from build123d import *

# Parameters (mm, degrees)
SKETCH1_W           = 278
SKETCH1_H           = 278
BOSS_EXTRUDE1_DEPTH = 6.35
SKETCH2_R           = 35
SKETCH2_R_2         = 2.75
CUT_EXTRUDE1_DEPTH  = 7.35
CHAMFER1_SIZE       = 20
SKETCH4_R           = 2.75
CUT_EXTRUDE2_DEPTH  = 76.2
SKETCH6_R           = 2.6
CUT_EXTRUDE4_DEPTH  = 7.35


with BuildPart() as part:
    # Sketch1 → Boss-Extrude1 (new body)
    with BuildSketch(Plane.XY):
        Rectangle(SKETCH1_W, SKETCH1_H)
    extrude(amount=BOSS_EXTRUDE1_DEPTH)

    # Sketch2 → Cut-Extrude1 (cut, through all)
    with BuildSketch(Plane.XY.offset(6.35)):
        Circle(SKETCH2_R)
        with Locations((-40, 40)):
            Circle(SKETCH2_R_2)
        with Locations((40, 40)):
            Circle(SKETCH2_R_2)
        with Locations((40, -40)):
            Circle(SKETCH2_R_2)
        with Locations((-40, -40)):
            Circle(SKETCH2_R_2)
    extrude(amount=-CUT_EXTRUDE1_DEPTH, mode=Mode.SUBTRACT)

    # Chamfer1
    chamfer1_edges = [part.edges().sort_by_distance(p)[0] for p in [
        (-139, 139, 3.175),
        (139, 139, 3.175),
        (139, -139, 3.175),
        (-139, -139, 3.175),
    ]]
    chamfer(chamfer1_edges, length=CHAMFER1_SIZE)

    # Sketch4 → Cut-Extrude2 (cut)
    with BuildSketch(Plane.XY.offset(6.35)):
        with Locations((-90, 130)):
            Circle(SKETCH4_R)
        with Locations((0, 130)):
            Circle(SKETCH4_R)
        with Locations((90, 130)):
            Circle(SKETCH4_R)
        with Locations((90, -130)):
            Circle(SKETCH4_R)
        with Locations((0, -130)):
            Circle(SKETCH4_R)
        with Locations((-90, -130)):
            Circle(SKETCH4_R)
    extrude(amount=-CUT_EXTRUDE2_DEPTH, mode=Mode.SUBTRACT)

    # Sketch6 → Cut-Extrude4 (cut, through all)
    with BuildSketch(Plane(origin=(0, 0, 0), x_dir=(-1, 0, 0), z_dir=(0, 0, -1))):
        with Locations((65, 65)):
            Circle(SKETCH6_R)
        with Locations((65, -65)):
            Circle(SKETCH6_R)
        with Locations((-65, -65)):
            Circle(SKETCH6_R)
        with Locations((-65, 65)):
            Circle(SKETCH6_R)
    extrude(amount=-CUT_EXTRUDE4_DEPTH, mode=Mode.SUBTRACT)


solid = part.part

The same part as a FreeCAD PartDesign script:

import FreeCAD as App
import Part
import Sketcher
from FreeCAD import Vector
Q = App.Units.Quantity


def edges_at(feature, points):
    """Names of the edges that pass closest to the given points."""
    edges = feature.Shape.Edges
    near = lambda p: min(range(len(edges)), key=lambda i: edges[i].distToShape(Part.Vertex(*p))[0])
    return sorted({f"Edge{near(p) + 1}" for p in points})

doc = App.newDocument("Part")
body = doc.addObject("PartDesign::Body", "Body")

# Sketch on XY plane
sketch1 = doc.addObject("Sketcher::SketchObject", "Sketch")
body.addObject(sketch1)
sketch1.AttachmentSupport = (doc.XY_Plane, [""])
sketch1.MapMode = "FlatFace"
sketch1.addGeometry(Part.LineSegment(Vector(-139, 139, 0), Vector(-139, -139, 0)), False)
sketch1.addGeometry(Part.LineSegment(Vector(-139, -139, 0), Vector(139, -139, 0)), False)
sketch1.addGeometry(Part.LineSegment(Vector(139, -139, 0), Vector(139, 139, 0)), False)
sketch1.addGeometry(Part.LineSegment(Vector(139, 139, 0), Vector(-139, 139, 0)), False)
sketch1.addConstraint(Sketcher.Constraint("Coincident", 0, 2, 1, 1))
sketch1.addConstraint(Sketcher.Constraint("Coincident", 1, 2, 2, 1))
sketch1.addConstraint(Sketcher.Constraint("Coincident", 2, 2, 3, 1))
sketch1.addConstraint(Sketcher.Constraint("Coincident", 3, 2, 0, 1))
sketch1.addConstraint(Sketcher.Constraint("Vertical", 0))
sketch1.addConstraint(Sketcher.Constraint("Horizontal", 1))
sketch1.addConstraint(Sketcher.Constraint("Vertical", 2))
sketch1.addConstraint(Sketcher.Constraint("Horizontal", 3))
sketch1.addConstraint(Sketcher.Constraint("Symmetric", 0, 2, 2, 2, -1, 1))
sketch1.addConstraint(Sketcher.Constraint("Equal", 3, 0))
sketch1.addConstraint(Sketcher.Constraint("DistanceX", 1, 1, 1, 2, Q("278 mm")))
pad1 = doc.addObject("PartDesign::Pad", "Pad")
body.addObject(pad1)
pad1.Profile = sketch1
pad1.Length = 6.35

# Sketch on XY plane
sketch2 = doc.addObject("Sketcher::SketchObject", "Sketch001")
body.addObject(sketch2)
sketch2.AttachmentSupport = (doc.XY_Plane, [""])
sketch2.MapMode = "FlatFace"
sketch2.AttachmentOffset = App.Placement(Vector(0, 0, 6.35), App.Rotation())
sketch2.addGeometry(Part.Circle(Vector(0, 0, 0), Vector(0, 0, 1), 35), False)
sketch2.addGeometry(Part.Circle(Vector(-40, 40, 0), Vector(0, 0, 1), 2.8), False)
sketch2.addGeometry(Part.Circle(Vector(40, 40, 0), Vector(0, 0, 1), 2.8), False)
sketch2.addGeometry(Part.Circle(Vector(40, -40, 0), Vector(0, 0, 1), 2.8), False)
sketch2.addGeometry(Part.Circle(Vector(-40, -40, 0), Vector(0, 0, 1), 2.8), False)
sketch2.addConstraint(Sketcher.Constraint("Coincident", 0, 3, -1, 1))
sketch2.addConstraint(Sketcher.Constraint("Equal", 1, 2))
sketch2.addConstraint(Sketcher.Constraint("Equal", 2, 3))
sketch2.addConstraint(Sketcher.Constraint("Equal", 3, 4))
sketch2.addConstraint(Sketcher.Constraint("Symmetric", 1, 3, 3, 3, -1, 1))
sketch2.addConstraint(Sketcher.Constraint("Symmetric", 2, 3, 4, 3, -1, 1))
sketch2.addConstraint(Sketcher.Constraint("Symmetric", 1, 3, 2, 3, -2))
sketch2.addConstraint(Sketcher.Constraint("Diameter", 0, Q("70 mm")))
sketch2.addConstraint(Sketcher.Constraint("Diameter", 1, Q("5.5 mm")))
sketch2.addConstraint(Sketcher.Constraint("DistanceX", 1, 3, -1, 1, Q("40 mm")))
sketch2.addConstraint(Sketcher.Constraint("DistanceY", -1, 1, 1, 3, Q("40 mm")))
pocket1 = doc.addObject("PartDesign::Pocket", "Pocket")
body.addObject(pocket1)
pocket1.Profile = sketch2
pocket1.Type = "ThroughAll"
doc.recompute()

chamfer = doc.addObject("PartDesign::Chamfer", "Chamfer")
body.addObject(chamfer)
chamfer.Base = (pocket1, edges_at(pocket1, [
    (-139, 139, 3.175),
    (139, 139, 3.175),
    (139, -139, 3.175),
    (-139, -139, 3.175),
]))
chamfer.Size = 20

# Sketch on XY plane
sketch3 = doc.addObject("Sketcher::SketchObject", "Sketch002")
body.addObject(sketch3)
sketch3.AttachmentSupport = (doc.XY_Plane, [""])
sketch3.MapMode = "FlatFace"
sketch3.AttachmentOffset = App.Placement(Vector(0, 0, 6.35), App.Rotation())
sketch3.addGeometry(Part.Circle(Vector(-90, 130, 0), Vector(0, 0, 1), 2.8), False)
sketch3.addGeometry(Part.Circle(Vector(0, 130, 0), Vector(0, 0, 1), 2.8), False)
sketch3.addGeometry(Part.Circle(Vector(90, 130, 0), Vector(0, 0, 1), 2.8), False)
sketch3.addGeometry(Part.Circle(Vector(90, -130, 0), Vector(0, 0, 1), 2.8), False)
sketch3.addGeometry(Part.Circle(Vector(0, -130, 0), Vector(0, 0, 1), 2.8), False)
sketch3.addGeometry(Part.Circle(Vector(-90, -130, 0), Vector(0, 0, 1), 2.8), False)
sketch3.addConstraint(Sketcher.Constraint("Equal", 0, 1))
sketch3.addConstraint(Sketcher.Constraint("Equal", 1, 2))
sketch3.addConstraint(Sketcher.Constraint("Equal", 2, 3))
sketch3.addConstraint(Sketcher.Constraint("Equal", 3, 4))
sketch3.addConstraint(Sketcher.Constraint("Equal", 4, 5))
sketch3.addConstraint(Sketcher.Constraint("Symmetric", 0, 3, 3, 3, -1, 1))
sketch3.addConstraint(Sketcher.Constraint("Symmetric", 1, 3, 4, 3, -1, 1))
sketch3.addConstraint(Sketcher.Constraint("Symmetric", 2, 3, 5, 3, -1, 1))
sketch3.addConstraint(Sketcher.Constraint("Symmetric", 0, 3, 2, 3, -2))
sketch3.addConstraint(Sketcher.Constraint("PointOnObject", 1, 3, -2))
sketch3.addConstraint(Sketcher.Constraint("Horizontal", 0, 3, 1, 3))
sketch3.addConstraint(Sketcher.Constraint("Diameter", 0, Q("5.5 mm")))
sketch3.addConstraint(Sketcher.Constraint("DistanceX", 0, 3, -1, 1, Q("90 mm")))
sketch3.addConstraint(Sketcher.Constraint("DistanceY", -1, 1, 0, 3, Q("130 mm")))
pocket2 = doc.addObject("PartDesign::Pocket", "Pocket001")
body.addObject(pocket2)
pocket2.Profile = sketch3
pocket2.Length = 76.2

# Sketch on XY plane
sketch4 = doc.addObject("Sketcher::SketchObject", "Sketch003")
body.addObject(sketch4)
sketch4.AttachmentSupport = (doc.XY_Plane, [""])
sketch4.MapMode = "FlatFace"
sketch4.addGeometry(Part.Circle(Vector(-65, 65, 0), Vector(0, 0, 1), 2.6), False)
sketch4.addGeometry(Part.Circle(Vector(-65, -65, 0), Vector(0, 0, 1), 2.6), False)
sketch4.addGeometry(Part.Circle(Vector(65, -65, 0), Vector(0, 0, 1), 2.6), False)
sketch4.addGeometry(Part.Circle(Vector(65, 65, 0), Vector(0, 0, 1), 2.6), False)
sketch4.addConstraint(Sketcher.Constraint("Equal", 0, 1))
sketch4.addConstraint(Sketcher.Constraint("Equal", 1, 2))
sketch4.addConstraint(Sketcher.Constraint("Equal", 2, 3))
sketch4.addConstraint(Sketcher.Constraint("Symmetric", 0, 3, 2, 3, -1, 1))
sketch4.addConstraint(Sketcher.Constraint("Symmetric", 1, 3, 3, 3, -1, 1))
sketch4.addConstraint(Sketcher.Constraint("Symmetric", 1, 3, 2, 3, -2))
sketch4.addConstraint(Sketcher.Constraint("Diameter", 0, Q("5.2 mm")))
sketch4.addConstraint(Sketcher.Constraint("DistanceX", 0, 3, -1, 1, Q("65 mm")))
sketch4.addConstraint(Sketcher.Constraint("DistanceY", -1, 1, 0, 3, Q("65 mm")))
pocket3 = doc.addObject("PartDesign::Pocket", "Pocket002")
body.addObject(pocket3)
pocket3.Profile = sketch4
pocket3.Type = "ThroughAll"
pocket3.Reversed = True

doc.recompute()
